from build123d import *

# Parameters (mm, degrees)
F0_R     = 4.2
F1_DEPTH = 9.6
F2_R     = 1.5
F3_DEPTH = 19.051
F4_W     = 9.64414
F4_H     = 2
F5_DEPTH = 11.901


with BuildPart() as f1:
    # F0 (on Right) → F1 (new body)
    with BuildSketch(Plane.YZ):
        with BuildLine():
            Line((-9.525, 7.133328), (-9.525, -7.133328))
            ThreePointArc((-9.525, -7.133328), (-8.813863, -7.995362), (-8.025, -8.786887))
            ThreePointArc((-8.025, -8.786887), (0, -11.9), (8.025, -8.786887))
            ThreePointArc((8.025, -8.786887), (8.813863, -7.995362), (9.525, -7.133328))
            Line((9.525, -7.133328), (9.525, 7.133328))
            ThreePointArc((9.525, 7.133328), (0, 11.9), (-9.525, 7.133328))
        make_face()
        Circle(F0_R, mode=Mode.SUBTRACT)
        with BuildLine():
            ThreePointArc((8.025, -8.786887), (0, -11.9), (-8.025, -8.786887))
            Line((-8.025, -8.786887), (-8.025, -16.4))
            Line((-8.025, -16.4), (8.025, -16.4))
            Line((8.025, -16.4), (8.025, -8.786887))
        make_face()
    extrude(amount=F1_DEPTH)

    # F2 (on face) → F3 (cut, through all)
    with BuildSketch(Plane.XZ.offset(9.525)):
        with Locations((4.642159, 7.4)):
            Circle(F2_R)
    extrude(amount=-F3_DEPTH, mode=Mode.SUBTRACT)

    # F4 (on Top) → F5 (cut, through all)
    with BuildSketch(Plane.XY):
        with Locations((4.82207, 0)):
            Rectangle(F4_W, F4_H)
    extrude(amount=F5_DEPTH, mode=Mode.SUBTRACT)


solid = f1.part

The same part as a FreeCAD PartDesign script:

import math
import FreeCAD as App
import Part
import Sketcher

doc = App.newDocument("Part")
params = doc.addObject("Spreadsheet::Sheet", "Params")
for row, (alias, value) in enumerate([
    ("sketch1_diameter", "8.4 mm"),
    ("sketch1_radius", "11.899999 mm"),
    ("sketch1_width", "16.05 mm"),
    ("pad1_length", "9.6 mm"),
    ("sketch2_diameter", "3 mm"),
    ("sketch3_height", "2 mm"),
], start=1):
    params.set(f"A{row}", alias)
    params.set(f"B{row}", "=" + value)
    params.setAlias(f"B{row}", alias)

body = doc.addObject("PartDesign::Body", "Body")

sketch1 = body.newObject("Sketcher::SketchObject", "Sketch")
sketch1.AttachmentSupport = (doc.getObject("YZ_Plane"), [""])
sketch1.MapMode = "FlatFace"
sketch1.addGeometry([
    Part.LineSegment(App.Vector(-9.525, 7.133328, 0), App.Vector(-9.525, -7.133328, 0)),
    Part.ArcOfCircle(Part.Circle(App.Vector(0.000046, 0.000038, 0), App.Vector(0, 0, 1), 11.900059), math.radians(-143.170235), math.radians(-132.405268)),
    Part.LineSegment(App.Vector(-8.025, -8.786887, 0), App.Vector(-8.025, -16.4, 0)),
    Part.LineSegment(App.Vector(-8.025, -16.4, 0), App.Vector(8.025, -16.4, 0)),
    Part.LineSegment(App.Vector(8.025, -16.4, 0), App.Vector(8.025, -8.786887, 0)),
    Part.ArcOfCircle(Part.Circle(App.Vector(-0.000046, 0.000038, 0), App.Vector(0, 0, 1), 11.900059), math.radians(-47.594732), math.radians(-36.829765)),
    Part.LineSegment(App.Vector(9.525, -7.133328, 0), App.Vector(9.525, 7.133328, 0)),
    Part.ArcOfCircle(Part.Circle(App.Vector(0, 0.000001, 0), App.Vector(0, 0, 1), 11.899999), math.radians(36.829751), math.radians(143.170249)),
    Part.Circle(App.Vector(0, 0, 0), App.Vector(0, 0, 1), 4.2),
], False)
sketch1.addConstraint([
    Sketcher.Constraint("Coincident", 0, 2, 1, 1),
    Sketcher.Constraint("Coincident", 1, 2, 2, 1),
    Sketcher.Constraint("Coincident", 2, 2, 3, 1),
    Sketcher.Constraint("Coincident", 3, 2, 4, 1),
    Sketcher.Constraint("Coincident", 4, 2, 5, 1),
    Sketcher.Constraint("Coincident", 5, 2, 6, 1),
    Sketcher.Constraint("Coincident", 6, 2, 7, 1),
    Sketcher.Constraint("Coincident", 7, 2, 0, 1),
    Sketcher.Constraint("Vertical", 0),
    Sketcher.Constraint("Vertical", 2),
    Sketcher.Constraint("Horizontal", 3),
    Sketcher.Constraint("Vertical", 4),
    Sketcher.Constraint("Vertical", 6),
    Sketcher.Constraint("Coincident", 7, 3, -1, 1),
    Sketcher.Constraint("Coincident", 8, 3, -1, 1),
    Sketcher.Constraint("Equal", 1, 5),
    Sketcher.Constraint("Symmetric", 0, 2, 6, 2, -1, 1),
    Sketcher.Constraint("Symmetric", 1, 3, 5, 3, -2),
    Sketcher.Constraint("Horizontal", 1, 2, 4, 2),
    Sketcher.Constraint("Diameter", 8, 8.4),
    Sketcher.Constraint("Radius", 7, 11.899999),
    Sketcher.Constraint("DistanceX", 3, 1, 3, 2, 16.05),
    Sketcher.Constraint("DistanceY", 2, 2, -1, 1, 16.4),
    Sketcher.Constraint("DistanceX", 0, 2, 1, 2, 1.5),
    Sketcher.Constraint("Radius", 1, 11.900059),
    Sketcher.Constraint("DistanceY", 2, 2, 2, 1, 7.613113),
])
sketch1.setExpression("Constraints[19]", "Params.sketch1_diameter")
sketch1.setExpression("Constraints[20]", "Params.sketch1_radius")
sketch1.setExpression("Constraints[21]", "Params.sketch1_width")
pad1 = body.newObject("PartDesign::Pad", "Pad")
pad1.Profile = sketch1
pad1.setExpression("Length", "Params.pad1_length")

sketch2 = body.newObject("Sketcher::SketchObject", "Sketch001")
sketch2.AttachmentSupport = (doc.getObject("XZ_Plane"), [""])
sketch2.MapMode = "FlatFace"
sketch2.AttachmentOffset = App.Placement(App.Vector(0, 0, 9.525), App.Rotation())
sketch2.addGeometry(Part.Circle(App.Vector(4.6, 7.4, 0), App.Vector(0, 0, 1), 1.5), False)
sketch2.addConstraint([
    Sketcher.Constraint("Diameter", 0, 3.0),
    Sketcher.Constraint("DistanceY", -1, 1, 0, 3, 7.4),
    Sketcher.Constraint("DistanceX", -1, 1, 0, 3, 4.642159),
])
sketch2.setExpression("Constraints[0]", "Params.sketch2_diameter")
pocket1 = body.newObject("PartDesign::Pocket", "Pocket")
pocket1.Profile = sketch2
pocket1.Type = "ThroughAll"

sketch3 = body.newObject("Sketcher::SketchObject", "Sketch002")
sketch3.AttachmentSupport = (doc.getObject("XY_Plane"), [""])
sketch3.MapMode = "FlatFace"
sketch3.addGeometry([
    Part.LineSegment(App.Vector(0, 1, 0), App.Vector(0, -1, 0)),
    Part.LineSegment(App.Vector(0, -1, 0), App.Vector(9.6, -1, 0)),
    Part.LineSegment(App.Vector(9.6, -1, 0), App.Vector(9.6, 1, 0)),
    Part.LineSegment(App.Vector(9.6, 1, 0), App.Vector(0, 1, 0)),
], False)
sketch3.addConstraint([
    Sketcher.Constraint("Coincident", 0, 2, 1, 1),
    Sketcher.Constraint("Coincident", 1, 2, 2, 1),
    Sketcher.Constraint("Coincident", 2, 2, 3, 1),
    Sketcher.Constraint("Coincident", 3, 2, 0, 1),
    Sketcher.Constraint("Vertical", 0),
    Sketcher.Constraint("Horizontal", 1),
    Sketcher.Constraint("Vertical", 2),
    Sketcher.Constraint("Horizontal", 3),
    Sketcher.Constraint("Symmetric", 0, 2, 3, 2, -1, 1),
    Sketcher.Constraint("DistanceY", 0, 2, 0, 1, 2.0),
    Sketcher.Constraint("DistanceX", 1, 1, 1, 2, 9.64414),
])
sketch3.setExpression("Constraints[9]", "Params.sketch3_height")
pocket2 = body.newObject("PartDesign::Pocket", "Pocket001")
pocket2.Profile = sketch3
pocket2.Type = "ThroughAll"
pocket2.Reversed = True

doc.recompute()
